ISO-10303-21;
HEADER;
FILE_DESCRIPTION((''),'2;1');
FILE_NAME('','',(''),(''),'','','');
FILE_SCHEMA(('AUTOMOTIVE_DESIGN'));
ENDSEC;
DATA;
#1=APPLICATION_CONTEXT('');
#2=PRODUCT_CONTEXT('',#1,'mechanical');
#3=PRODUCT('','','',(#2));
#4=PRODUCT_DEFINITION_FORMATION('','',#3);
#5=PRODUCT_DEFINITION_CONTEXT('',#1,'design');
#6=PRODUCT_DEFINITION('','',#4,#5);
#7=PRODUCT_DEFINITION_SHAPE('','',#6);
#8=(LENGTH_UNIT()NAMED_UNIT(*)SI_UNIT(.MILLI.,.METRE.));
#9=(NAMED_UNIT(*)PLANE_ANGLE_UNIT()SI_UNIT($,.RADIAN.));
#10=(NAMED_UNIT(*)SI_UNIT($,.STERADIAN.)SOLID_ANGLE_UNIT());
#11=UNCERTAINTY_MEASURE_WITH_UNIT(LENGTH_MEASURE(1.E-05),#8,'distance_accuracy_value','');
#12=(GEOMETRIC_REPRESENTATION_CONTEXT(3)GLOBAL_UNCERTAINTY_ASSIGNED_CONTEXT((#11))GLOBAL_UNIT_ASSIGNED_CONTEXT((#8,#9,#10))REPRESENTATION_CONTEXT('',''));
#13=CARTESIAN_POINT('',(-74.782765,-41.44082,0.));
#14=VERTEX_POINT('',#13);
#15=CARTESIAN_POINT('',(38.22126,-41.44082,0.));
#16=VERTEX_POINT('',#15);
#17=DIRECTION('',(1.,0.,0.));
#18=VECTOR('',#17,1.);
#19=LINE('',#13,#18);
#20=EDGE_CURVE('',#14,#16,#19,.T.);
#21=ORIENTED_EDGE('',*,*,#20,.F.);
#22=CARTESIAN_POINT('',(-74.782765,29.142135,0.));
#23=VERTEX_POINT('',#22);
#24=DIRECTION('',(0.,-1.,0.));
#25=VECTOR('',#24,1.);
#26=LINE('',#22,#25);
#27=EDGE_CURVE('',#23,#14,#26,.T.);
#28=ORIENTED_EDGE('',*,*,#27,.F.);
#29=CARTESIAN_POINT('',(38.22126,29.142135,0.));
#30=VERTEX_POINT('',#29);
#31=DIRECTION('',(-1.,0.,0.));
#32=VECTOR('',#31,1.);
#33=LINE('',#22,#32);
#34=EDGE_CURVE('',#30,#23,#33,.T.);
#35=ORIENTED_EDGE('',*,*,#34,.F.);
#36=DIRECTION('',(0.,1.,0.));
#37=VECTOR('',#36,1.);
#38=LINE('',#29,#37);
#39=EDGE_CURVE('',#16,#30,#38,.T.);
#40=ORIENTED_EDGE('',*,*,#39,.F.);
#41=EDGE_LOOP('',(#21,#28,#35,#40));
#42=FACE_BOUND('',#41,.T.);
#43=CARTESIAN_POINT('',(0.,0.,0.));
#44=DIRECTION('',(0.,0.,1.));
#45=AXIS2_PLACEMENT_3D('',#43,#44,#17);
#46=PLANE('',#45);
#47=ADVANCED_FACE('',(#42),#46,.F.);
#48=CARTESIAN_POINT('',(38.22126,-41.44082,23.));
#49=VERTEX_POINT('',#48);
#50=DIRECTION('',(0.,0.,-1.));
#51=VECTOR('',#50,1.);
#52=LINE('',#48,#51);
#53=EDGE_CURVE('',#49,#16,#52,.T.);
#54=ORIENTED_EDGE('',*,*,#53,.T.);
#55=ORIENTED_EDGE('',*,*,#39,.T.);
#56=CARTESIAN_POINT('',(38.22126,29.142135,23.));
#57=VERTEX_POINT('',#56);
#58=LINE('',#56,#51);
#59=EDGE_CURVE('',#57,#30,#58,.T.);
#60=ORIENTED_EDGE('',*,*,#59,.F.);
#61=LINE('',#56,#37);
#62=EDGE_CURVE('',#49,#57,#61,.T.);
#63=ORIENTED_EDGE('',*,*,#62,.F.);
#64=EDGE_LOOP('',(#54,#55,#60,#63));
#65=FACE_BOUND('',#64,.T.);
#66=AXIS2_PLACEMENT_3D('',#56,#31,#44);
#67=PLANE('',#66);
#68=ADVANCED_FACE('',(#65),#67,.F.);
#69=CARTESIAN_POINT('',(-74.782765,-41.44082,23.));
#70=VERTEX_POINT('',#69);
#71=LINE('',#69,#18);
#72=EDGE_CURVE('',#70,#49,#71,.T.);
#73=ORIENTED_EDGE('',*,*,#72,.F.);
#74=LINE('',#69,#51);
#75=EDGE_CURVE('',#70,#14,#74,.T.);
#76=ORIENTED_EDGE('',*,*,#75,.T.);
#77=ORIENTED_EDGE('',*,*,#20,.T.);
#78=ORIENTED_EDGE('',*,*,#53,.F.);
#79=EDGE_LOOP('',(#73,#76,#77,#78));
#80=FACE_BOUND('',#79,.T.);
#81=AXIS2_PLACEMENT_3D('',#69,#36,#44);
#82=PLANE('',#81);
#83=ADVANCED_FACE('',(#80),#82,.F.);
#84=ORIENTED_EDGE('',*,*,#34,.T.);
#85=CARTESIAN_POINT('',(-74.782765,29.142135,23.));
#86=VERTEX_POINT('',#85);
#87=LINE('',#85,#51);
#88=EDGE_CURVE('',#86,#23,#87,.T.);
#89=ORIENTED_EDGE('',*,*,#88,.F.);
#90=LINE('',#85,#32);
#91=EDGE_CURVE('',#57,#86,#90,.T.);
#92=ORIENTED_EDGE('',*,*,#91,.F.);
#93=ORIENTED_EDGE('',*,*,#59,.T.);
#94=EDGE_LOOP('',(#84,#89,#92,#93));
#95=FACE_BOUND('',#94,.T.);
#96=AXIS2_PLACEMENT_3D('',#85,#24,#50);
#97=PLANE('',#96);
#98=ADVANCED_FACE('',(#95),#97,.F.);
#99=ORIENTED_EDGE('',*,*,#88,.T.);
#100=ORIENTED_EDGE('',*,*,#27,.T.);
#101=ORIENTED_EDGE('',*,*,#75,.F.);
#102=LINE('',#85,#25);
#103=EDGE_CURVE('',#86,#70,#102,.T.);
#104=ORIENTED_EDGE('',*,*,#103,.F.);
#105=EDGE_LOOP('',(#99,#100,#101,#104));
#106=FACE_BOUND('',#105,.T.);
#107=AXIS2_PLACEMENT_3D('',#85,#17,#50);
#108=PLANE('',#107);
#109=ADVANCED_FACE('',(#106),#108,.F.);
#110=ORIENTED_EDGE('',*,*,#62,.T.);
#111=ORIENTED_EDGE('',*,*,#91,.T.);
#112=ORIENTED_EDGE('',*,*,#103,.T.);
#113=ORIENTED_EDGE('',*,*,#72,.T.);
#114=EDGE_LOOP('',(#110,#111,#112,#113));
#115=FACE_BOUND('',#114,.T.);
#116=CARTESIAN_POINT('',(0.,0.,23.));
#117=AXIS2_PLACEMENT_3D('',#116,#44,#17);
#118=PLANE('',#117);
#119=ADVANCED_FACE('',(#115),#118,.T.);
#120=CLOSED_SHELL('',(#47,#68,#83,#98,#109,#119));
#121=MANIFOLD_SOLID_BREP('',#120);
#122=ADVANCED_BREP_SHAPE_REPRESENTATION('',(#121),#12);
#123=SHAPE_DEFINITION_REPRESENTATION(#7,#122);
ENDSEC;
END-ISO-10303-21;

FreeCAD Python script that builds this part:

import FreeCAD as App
import Part
import Sketcher

V = App.Vector
Q = App.Units.Quantity


def add_polygon(sketch, points):
    """Adds a closed chain of lines whose ends are joined by coincident constraints."""
    first, n = sketch.GeometryCount, len(points)
    for a, b in zip(points, points[1:] + points[:1]):
        sketch.addGeometry(Part.LineSegment(App.Vector(*a, 0), App.Vector(*b, 0)), False)
    for i in range(n):
        sketch.addConstraint(Sketcher.Constraint("Coincident", first + i, 2, first + (i + 1) % n, 1))

doc = App.newDocument("Part")
body = doc.addObject("PartDesign::Body", "Body")

sketch1 = body.newObject("Sketcher::SketchObject", "Sketch")
sketch1.AttachmentSupport = (doc.getObject("XY_Plane"), [""])
sketch1.MapMode = "FlatFace"
add_polygon(sketch1, [(-74.782765, 29.142135), (-74.782765, -41.44082), (38.22126, -41.44082), (38.22126, 29.142135)])
sketch1.addConstraint(Sketcher.Constraint("Vertical", 0))
sketch1.addConstraint(Sketcher.Constraint("Horizontal", 1))
sketch1.addConstraint(Sketcher.Constraint("Vertical", 2))
sketch1.addConstraint(Sketcher.Constraint("Horizontal", 3))
sketch1.addConstraint(Sketcher.Constraint("DistanceX", 1, 1, 1, 2, Q("113.004025 mm")))
sketch1.addConstraint(Sketcher.Constraint("DistanceY", 0, 2, 0, 1, Q("70.582956 mm")))
sketch1.addConstraint(Sketcher.Constraint("DistanceY", 0, 2, -1, 1, Q("41.44082 mm")))
sketch1.addConstraint(Sketcher.Constraint("DistanceX", -1, 1, 1, 2, Q("38.22126 mm")))
pad1 = body.newObject("PartDesign::Pad", "Pad")
pad1.Profile = sketch1
pad1.Length = 23

doc.recompute()
